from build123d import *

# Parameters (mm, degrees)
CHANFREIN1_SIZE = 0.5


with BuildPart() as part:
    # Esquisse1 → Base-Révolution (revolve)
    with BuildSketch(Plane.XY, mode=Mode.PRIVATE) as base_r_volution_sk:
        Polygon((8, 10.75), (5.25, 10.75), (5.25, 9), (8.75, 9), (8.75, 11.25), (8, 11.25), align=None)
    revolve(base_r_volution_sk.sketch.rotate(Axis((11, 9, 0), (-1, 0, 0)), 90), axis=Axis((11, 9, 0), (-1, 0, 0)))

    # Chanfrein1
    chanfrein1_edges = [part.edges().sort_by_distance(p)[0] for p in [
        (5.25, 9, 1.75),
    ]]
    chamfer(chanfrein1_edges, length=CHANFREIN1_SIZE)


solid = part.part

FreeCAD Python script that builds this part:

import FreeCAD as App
import Part
import Sketcher

V = App.Vector


def edges_at(feature, points):
    """Names of the edges that pass closest to the given points."""
    edges = feature.Shape.Edges
    near = lambda p: min(range(len(edges)), key=lambda i: edges[i].distToShape(Part.Vertex(*p))[0])
    return sorted({f"Edge{near(p) + 1}" for p in points})

doc = App.newDocument("Part")
params = doc.addObject("Spreadsheet::Sheet", "Params")
for row, (alias, value) in enumerate([
    ("sketch1_width", "3.5 mm"),
    ("sketch1_height", "0.5 mm"),
    ("sketch1_width2", "2.75 mm"),
    ("sketch1_height2", "1.75 mm"),
    ("revolution_angle", "360 deg"),
    ("chamfer_size", "0.5 mm"),
], start=1):
    params.set(f"A{row}", alias)
    params.set(f"B{row}", "=" + value)
    params.setAlias(f"B{row}", alias)

body = doc.addObject("PartDesign::Body", "Body")

sketch1 = doc.addObject("Sketcher::SketchObject", "Sketch")
body.addObject(sketch1)
sketch1.AttachmentSupport = (doc.XY_Plane, [""])
sketch1.MapMode = "FlatFace"
sketch1.addGeometry([
    Part.LineSegment(V(8, 10.75, 0), V(5.25, 10.75, 0)),
    Part.LineSegment(V(5.25, 10.75, 0), V(5.25, 9, 0)),
    Part.LineSegment(V(5.25, 9, 0), V(8.75, 9, 0)),
    Part.LineSegment(V(8.75, 9, 0), V(8.75, 11.25, 0)),
    Part.LineSegment(V(8.75, 11.25, 0), V(8, 11.25, 0)),
    Part.LineSegment(V(8, 11.25, 0), V(8, 10.75, 0)),
], False)
sketch1.addGeometry(Part.LineSegment(V(8.75, 9, 0), V(5.25, 9, 0)), True)
sketch1.addConstraint([
    Sketcher.Constraint("Coincident", 0, 2, 1, 1),
    Sketcher.Constraint("Coincident", 1, 2, 2, 1),
    Sketcher.Constraint("Coincident", 2, 2, 3, 1),
    Sketcher.Constraint("Coincident", 3, 2, 4, 1),
    Sketcher.Constraint("Coincident", 4, 2, 5, 1),
    Sketcher.Constraint("Coincident", 5, 2, 0, 1),
    Sketcher.Constraint("Horizontal", 0),
    Sketcher.Constraint("Vertical", 1),
    Sketcher.Constraint("Horizontal", 2),
    Sketcher.Constraint("Vertical", 3),
    Sketcher.Constraint("Horizontal", 4),
    Sketcher.Constraint("Vertical", 5),
    Sketcher.Constraint("Horizontal", 6),
    Sketcher.Constraint("Coincident", 6, 1, 2, 2),
    Sketcher.Constraint("Vertical", 0, 2, 6, 2),
    Sketcher.Constraint("DistanceX", 2, 1, 2, 2, 3.5),
    Sketcher.Constraint("DistanceY", 5, 2, 5, 1, 0.5),
    Sketcher.Constraint("DistanceY", -1, 1, 1, 2, 9.0),
    Sketcher.Constraint("DistanceX", -1, 1, 4, 2, 8.0),
    Sketcher.Constraint("DistanceX", 0, 2, 0, 1, 2.75),
    Sketcher.Constraint("DistanceY", 1, 2, 1, 1, 1.75),
])
sketch1.setExpression("Constraints[15]", "Params.sketch1_width")
sketch1.setExpression("Constraints[16]", "Params.sketch1_height")
sketch1.setExpression("Constraints[19]", "Params.sketch1_width2")
sketch1.setExpression("Constraints[20]", "Params.sketch1_height2")
revolution = doc.addObject("PartDesign::Revolution", "Revolution")
body.addObject(revolution)
revolution.Profile = sketch1
revolution.ReferenceAxis = (sketch1, ["Axis0"])
revolution.setExpression("Angle", "Params.revolution_angle")
doc.recompute()

chamfer = doc.addObject("PartDesign::Chamfer", "Chamfer")
body.addObject(chamfer)
chamfer.Base = (revolution, edges_at(revolution, [(5.25, 9, 1.75)]))
chamfer.setExpression("Size", "Params.chamfer_size")

doc.recompute()
